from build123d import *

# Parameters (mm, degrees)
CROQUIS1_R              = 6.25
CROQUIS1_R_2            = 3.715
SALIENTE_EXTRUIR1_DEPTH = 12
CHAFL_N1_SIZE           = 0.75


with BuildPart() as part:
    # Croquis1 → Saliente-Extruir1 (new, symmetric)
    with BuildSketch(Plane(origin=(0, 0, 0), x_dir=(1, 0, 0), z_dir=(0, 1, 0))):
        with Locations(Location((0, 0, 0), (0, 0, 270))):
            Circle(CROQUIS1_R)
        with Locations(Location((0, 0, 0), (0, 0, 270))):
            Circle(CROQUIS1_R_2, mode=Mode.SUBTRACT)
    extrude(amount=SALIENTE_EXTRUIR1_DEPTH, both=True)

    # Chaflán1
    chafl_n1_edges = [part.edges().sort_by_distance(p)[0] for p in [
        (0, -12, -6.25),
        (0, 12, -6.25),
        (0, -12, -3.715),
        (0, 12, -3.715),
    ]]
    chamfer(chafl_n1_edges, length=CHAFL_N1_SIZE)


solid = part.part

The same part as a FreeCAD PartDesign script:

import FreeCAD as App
import Part
import Sketcher

V = App.Vector


def edges_at(feature, points):
    """Names of the edges that pass closest to the given points."""
    edges = feature.Shape.Edges
    near = lambda p: min(range(len(edges)), key=lambda i: edges[i].distToShape(Part.Vertex(*p))[0])
    return sorted({f"Edge{near(p) + 1}" for p in points})

doc = App.newDocument("Part")
params = doc.addObject("Spreadsheet::Sheet", "Params")
for row, (alias, value) in enumerate([
    ("sketch1_diameter", "12.5 mm"),
    ("sketch1_diameter2", "7.43 mm"),
    ("pad1_length", "24 mm"),
    ("chamfer_size", "0.75 mm"),
], start=1):
    params.set(f"A{row}", alias)
    params.set(f"B{row}", "=" + value)
    params.setAlias(f"B{row}", alias)

body = doc.addObject("PartDesign::Body", "Body")

# Sketch on XZ plane
sketch1 = body.newObject("Sketcher::SketchObject", "Sketch")
sketch1.AttachmentSupport = (doc.getObject("XZ_Plane"), [""])
sketch1.MapMode = "FlatFace"
sketch1.addGeometry([
    Part.Circle(V(0, 0, 0), V(0, 0, 1), 6.2),
    Part.Circle(V(0, 0, 0), V(0, 0, 1), 3.7),
], False)
sketch1.addConstraint([
    Sketcher.Constraint("Coincident", 0, 3, -1, 1),
    Sketcher.Constraint("Coincident", 1, 3, -1, 1),
    Sketcher.Constraint("Diameter", 0, 12.5),
    Sketcher.Constraint("Diameter", 1, 7.43),
])
sketch1.setExpression("Constraints[2]", "Params.sketch1_diameter")
sketch1.setExpression("Constraints[3]", "Params.sketch1_diameter2")
pad1 = body.newObject("PartDesign::Pad", "Pad")
pad1.Profile = sketch1
pad1.setExpression("Length", "Params.pad1_length")
pad1.Midplane = True
doc.recompute()

chamfer = body.newObject("PartDesign::Chamfer", "Chamfer")
chamfer.Base = (pad1, edges_at(pad1, [
    (0, -12, -6.25),
    (0, 12, -6.25),
    (0, -12, -3.715),
    (0, 12, -3.715),
]))
chamfer.setExpression("Size", "Params.chamfer_size")

doc.recompute()
